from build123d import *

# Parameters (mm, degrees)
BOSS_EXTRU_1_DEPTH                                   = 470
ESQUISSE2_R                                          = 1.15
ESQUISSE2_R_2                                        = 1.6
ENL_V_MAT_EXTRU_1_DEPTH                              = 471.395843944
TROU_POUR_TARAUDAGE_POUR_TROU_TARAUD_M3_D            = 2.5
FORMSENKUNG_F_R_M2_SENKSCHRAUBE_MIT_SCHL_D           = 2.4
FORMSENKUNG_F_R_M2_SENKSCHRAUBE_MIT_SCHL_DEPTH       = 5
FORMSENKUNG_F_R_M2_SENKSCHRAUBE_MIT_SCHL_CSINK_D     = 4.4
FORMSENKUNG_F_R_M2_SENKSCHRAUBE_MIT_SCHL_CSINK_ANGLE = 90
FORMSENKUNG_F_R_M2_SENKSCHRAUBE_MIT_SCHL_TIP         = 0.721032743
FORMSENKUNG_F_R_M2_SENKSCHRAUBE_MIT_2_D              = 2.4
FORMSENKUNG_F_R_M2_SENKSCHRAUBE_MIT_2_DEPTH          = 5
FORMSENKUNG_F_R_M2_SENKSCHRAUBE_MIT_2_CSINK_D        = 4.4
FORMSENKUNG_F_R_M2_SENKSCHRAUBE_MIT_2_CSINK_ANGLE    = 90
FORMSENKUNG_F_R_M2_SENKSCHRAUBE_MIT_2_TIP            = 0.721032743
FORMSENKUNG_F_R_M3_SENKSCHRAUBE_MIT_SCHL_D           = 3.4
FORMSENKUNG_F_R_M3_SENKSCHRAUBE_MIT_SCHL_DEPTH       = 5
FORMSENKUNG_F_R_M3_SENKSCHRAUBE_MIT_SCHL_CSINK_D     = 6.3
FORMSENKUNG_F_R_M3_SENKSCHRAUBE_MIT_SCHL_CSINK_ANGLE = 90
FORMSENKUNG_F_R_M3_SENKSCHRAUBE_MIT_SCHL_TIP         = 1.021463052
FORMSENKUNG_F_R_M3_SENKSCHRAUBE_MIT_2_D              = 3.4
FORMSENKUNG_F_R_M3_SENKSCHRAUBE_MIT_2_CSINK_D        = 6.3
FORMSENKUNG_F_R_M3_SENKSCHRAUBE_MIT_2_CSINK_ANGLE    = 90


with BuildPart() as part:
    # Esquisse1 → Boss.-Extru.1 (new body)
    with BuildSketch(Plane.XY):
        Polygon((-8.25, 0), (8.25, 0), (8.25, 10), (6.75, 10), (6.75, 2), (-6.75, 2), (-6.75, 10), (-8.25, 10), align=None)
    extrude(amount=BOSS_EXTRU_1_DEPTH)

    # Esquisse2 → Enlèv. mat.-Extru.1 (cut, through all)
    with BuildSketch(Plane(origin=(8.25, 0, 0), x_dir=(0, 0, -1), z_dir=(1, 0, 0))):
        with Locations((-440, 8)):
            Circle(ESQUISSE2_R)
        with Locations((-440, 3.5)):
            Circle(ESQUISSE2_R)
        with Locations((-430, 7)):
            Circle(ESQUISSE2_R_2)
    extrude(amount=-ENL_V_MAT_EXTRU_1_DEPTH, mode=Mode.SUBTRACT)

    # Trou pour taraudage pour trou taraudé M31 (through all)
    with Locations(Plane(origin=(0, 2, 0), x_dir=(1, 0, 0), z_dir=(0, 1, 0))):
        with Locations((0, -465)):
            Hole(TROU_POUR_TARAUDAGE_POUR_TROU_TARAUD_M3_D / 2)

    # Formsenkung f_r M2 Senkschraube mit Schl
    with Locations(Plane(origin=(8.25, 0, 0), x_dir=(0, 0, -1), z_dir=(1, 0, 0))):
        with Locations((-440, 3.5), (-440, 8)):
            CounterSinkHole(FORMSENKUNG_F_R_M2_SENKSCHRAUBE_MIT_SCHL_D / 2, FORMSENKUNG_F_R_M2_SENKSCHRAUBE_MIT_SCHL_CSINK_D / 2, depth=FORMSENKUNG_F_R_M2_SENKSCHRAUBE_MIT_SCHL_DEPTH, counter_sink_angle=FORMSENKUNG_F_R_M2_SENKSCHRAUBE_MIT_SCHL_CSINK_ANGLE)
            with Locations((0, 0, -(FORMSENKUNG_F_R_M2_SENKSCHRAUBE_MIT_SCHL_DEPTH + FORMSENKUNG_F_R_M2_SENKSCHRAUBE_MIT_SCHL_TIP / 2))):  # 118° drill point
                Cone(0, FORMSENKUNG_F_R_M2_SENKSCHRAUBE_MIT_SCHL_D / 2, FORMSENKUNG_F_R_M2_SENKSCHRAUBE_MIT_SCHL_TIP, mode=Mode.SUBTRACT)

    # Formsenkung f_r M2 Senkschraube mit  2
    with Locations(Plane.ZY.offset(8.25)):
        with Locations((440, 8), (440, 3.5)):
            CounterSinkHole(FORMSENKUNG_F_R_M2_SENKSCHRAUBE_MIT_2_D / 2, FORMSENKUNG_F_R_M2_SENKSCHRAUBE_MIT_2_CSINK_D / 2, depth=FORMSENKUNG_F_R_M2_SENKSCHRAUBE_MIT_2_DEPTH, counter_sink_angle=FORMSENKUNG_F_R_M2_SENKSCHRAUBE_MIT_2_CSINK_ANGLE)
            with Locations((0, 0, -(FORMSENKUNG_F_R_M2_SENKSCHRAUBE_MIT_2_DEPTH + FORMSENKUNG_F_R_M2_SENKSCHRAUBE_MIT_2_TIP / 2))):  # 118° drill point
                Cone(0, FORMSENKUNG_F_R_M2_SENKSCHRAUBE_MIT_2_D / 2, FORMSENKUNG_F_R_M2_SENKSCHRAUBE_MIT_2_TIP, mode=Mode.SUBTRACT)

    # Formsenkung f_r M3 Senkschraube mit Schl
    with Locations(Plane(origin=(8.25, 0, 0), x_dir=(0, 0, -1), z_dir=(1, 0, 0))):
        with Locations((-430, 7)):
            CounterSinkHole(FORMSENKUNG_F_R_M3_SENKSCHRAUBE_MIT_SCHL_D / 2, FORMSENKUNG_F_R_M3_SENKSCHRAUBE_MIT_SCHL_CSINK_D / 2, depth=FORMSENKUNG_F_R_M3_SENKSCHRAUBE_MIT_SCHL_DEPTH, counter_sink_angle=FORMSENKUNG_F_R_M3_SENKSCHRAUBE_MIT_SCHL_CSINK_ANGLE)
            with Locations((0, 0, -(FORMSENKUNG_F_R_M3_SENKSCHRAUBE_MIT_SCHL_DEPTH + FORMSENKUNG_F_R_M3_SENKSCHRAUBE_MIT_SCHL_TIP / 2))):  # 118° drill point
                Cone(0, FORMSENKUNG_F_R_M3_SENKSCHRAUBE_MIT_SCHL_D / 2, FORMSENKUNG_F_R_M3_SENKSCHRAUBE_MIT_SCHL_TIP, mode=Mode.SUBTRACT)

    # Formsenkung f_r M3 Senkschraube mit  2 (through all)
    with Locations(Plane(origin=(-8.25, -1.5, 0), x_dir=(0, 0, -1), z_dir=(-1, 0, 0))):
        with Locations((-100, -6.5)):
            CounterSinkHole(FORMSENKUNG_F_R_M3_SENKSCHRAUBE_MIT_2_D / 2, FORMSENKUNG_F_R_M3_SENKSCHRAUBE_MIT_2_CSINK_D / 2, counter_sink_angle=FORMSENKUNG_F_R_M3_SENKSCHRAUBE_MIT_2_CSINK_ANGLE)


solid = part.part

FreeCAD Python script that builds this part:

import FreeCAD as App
import Part
import Sketcher
from FreeCAD import Vector
Q = App.Units.Quantity


def add_polygon(sketch, points):
    """Adds a closed chain of lines whose ends are joined by coincident constraints."""
    first, n = sketch.GeometryCount, len(points)
    for a, b in zip(points, points[1:] + points[:1]):
        sketch.addGeometry(Part.LineSegment(App.Vector(*a, 0), App.Vector(*b, 0)), False)
    for i in range(n):
        sketch.addConstraint(Sketcher.Constraint("Coincident", first + i, 2, first + (i + 1) % n, 1))

doc = App.newDocument("Part")
body = doc.addObject("PartDesign::Body", "Body")

# Sketch on XY plane
sketch1 = doc.addObject("Sketcher::SketchObject", "Sketch")
body.addObject(sketch1)
sketch1.AttachmentSupport = (doc.XY_Plane, [""])
sketch1.MapMode = "FlatFace"
add_polygon(sketch1, [(-8.2, 0), (8.2, 0), (8.2, 10), (6.8, 10), (6.8, 2), (-6.8, 2), (-6.8, 10), (-8.2, 10)])  # lines 0-7
sketch1.addConstraint(Sketcher.Constraint("Horizontal", 0))
sketch1.addConstraint(Sketcher.Constraint("Vertical", 1))
sketch1.addConstraint(Sketcher.Constraint("Horizontal", 2))
sketch1.addConstraint(Sketcher.Constraint("Vertical", 3))
sketch1.addConstraint(Sketcher.Constraint("Horizontal", 4))
sketch1.addConstraint(Sketcher.Constraint("Vertical", 5))
sketch1.addConstraint(Sketcher.Constraint("Horizontal", 6))
sketch1.addConstraint(Sketcher.Constraint("Vertical", 7))
sketch1.addConstraint(Sketcher.Constraint("Symmetric", 0, 2, 7, 2, -1, 1))
sketch1.addConstraint(Sketcher.Constraint("Symmetric", 2, 2, 5, 2, -2))
sketch1.addConstraint(Sketcher.Constraint("DistanceY", 1, 1, 1, 2, Q("10 mm")))
sketch1.addConstraint(Sketcher.Constraint("DistanceY", 3, 2, 3, 1, Q("8 mm")))
sketch1.addConstraint(Sketcher.Constraint("DistanceX", 0, 1, 0, 2, Q("16.5 mm")))
sketch1.addConstraint(Sketcher.Constraint("DistanceX", 2, 2, 2, 1, Q("1.5 mm")))
pad1 = doc.addObject("PartDesign::Pad", "Pad")
body.addObject(pad1)
pad1.Profile = sketch1
pad1.Length = 470

# Sketch on YZ plane
sketch2 = doc.addObject("Sketcher::SketchObject", "Sketch001")
body.addObject(sketch2)
sketch2.AttachmentSupport = (doc.YZ_Plane, [""])
sketch2.MapMode = "FlatFace"
sketch2.AttachmentOffset = App.Placement(Vector(0, 0, 8.25), App.Rotation())
sketch2.addGeometry(Part.Circle(Vector(8, 440, 0), Vector(0, 0, 1), 1.1), False)
sketch2.addGeometry(Part.Circle(Vector(3.5, 440, 0), Vector(0, 0, 1), 1.1), False)
sketch2.addGeometry(Part.Circle(Vector(7, 430, 0), Vector(0, 0, 1), 1.6), False)
sketch2.addConstraint(Sketcher.Constraint("Equal", 0, 1))
sketch2.addConstraint(Sketcher.Constraint("Horizontal", 0, 3, 1, 3))
sketch2.addConstraint(Sketcher.Constraint("Diameter", 0, Q("2.3 mm")))
sketch2.addConstraint(Sketcher.Constraint("Diameter", 2, Q("3.2 mm")))
sketch2.addConstraint(Sketcher.Constraint("DistanceX", -1, 1, 0, 3, Q("8 mm")))
sketch2.addConstraint(Sketcher.Constraint("DistanceY", -1, 1, 0, 3, Q("440 mm")))
sketch2.addConstraint(Sketcher.Constraint("DistanceX", -1, 1, 2, 3, Q("7 mm")))
sketch2.addConstraint(Sketcher.Constraint("DistanceY", -1, 1, 2, 3, Q("430 mm")))
sketch2.addConstraint(Sketcher.Constraint("DistanceX", -1, 1, 1, 3, Q("3.5 mm")))
pocket1 = doc.addObject("PartDesign::Pocket", "Pocket")
body.addObject(pocket1)
pocket1.Profile = sketch2
pocket1.Type = "ThroughAll"

# Sketch on XZ plane
sketch3 = doc.addObject("Sketcher::SketchObject", "Sketch002")
body.addObject(sketch3)
sketch3.AttachmentSupport = (doc.XZ_Plane, [""])
sketch3.MapMode = "FlatFace"
sketch3.AttachmentOffset = App.Placement(Vector(0, 0, -2), App.Rotation())
sketch3.addGeometry(Part.Circle(Vector(0, 465, 0), Vector(0, 0, 1), 1.2), False)
sketch3.addConstraint(Sketcher.Constraint("PointOnObject", 0, 3, -2))
sketch3.addConstraint(Sketcher.Constraint("Diameter", 0, Q("2.5 mm")))
sketch3.addConstraint(Sketcher.Constraint("DistanceY", -1, 1, 0, 3, Q("465 mm")))
doc.recompute()
hole = doc.addObject("PartDesign::Hole", "Hole")
body.addObject(hole)
hole.Profile = sketch3
hole.ThreadType = "None"
hole.Diameter = 2.5
hole.DepthType = "ThroughAll"
hole.Reversed = True

# Sketch on YZ plane
sketch4 = doc.addObject("Sketcher::SketchObject", "Sketch003")
body.addObject(sketch4)
sketch4.AttachmentSupport = (doc.YZ_Plane, [""])
sketch4.MapMode = "FlatFace"
sketch4.AttachmentOffset = App.Placement(Vector(0, 0, 8.25), App.Rotation())
sketch4.addGeometry(Part.Circle(Vector(3.5, 440, 0), Vector(0, 0, 1), 1.2), False)
sketch4.addGeometry(Part.Circle(Vector(8, 440, 0), Vector(0, 0, 1), 1.2), False)
sketch4.addConstraint(Sketcher.Constraint("Equal", 0, 1))
sketch4.addConstraint(Sketcher.Constraint("Horizontal", 0, 3, 1, 3))
sketch4.addConstraint(Sketcher.Constraint("Diameter", 0, Q("2.4 mm")))
sketch4.addConstraint(Sketcher.Constraint("DistanceY", -1, 1, 0, 3, Q("440 mm")))
sketch4.addConstraint(Sketcher.Constraint("DistanceX", -1, 1, 1, 3, Q("8 mm")))
sketch4.addConstraint(Sketcher.Constraint("DistanceX", -1, 1, 0, 3, Q("3.5 mm")))
doc.recompute()
hole2 = doc.addObject("PartDesign::Hole", "Hole001")
body.addObject(hole2)
hole2.Profile = sketch4
hole2.ThreadType = "None"
hole2.Diameter = 2.4
hole2.DepthType = "Dimension"
hole2.Depth = 5
hole2.DrillPoint = "Angled"
hole2.DrillPointAngle = 118
hole2.HoleCutType = "Countersink"
hole2.HoleCutDiameter = 4.4
hole2.HoleCutCountersinkAngle = 90

# Sketch on YZ plane
sketch5 = doc.addObject("Sketcher::SketchObject", "Sketch004")
body.addObject(sketch5)
sketch5.AttachmentSupport = (doc.YZ_Plane, [""])
sketch5.MapMode = "FlatFace"
sketch5.AttachmentOffset = App.Placement(Vector(0, 0, -8.25), App.Rotation())
sketch5.addGeometry(Part.Circle(Vector(8, 440, 0), Vector(0, 0, 1), 1.2), False)
sketch5.addGeometry(Part.Circle(Vector(3.5, 440, 0), Vector(0, 0, 1), 1.2), False)
sketch5.addConstraint(Sketcher.Constraint("Equal", 0, 1))
sketch5.addConstraint(Sketcher.Constraint("Horizontal", 0, 3, 1, 3))
sketch5.addConstraint(Sketcher.Constraint("Diameter", 0, Q("2.4 mm")))
sketch5.addConstraint(Sketcher.Constraint("DistanceX", -1, 1, 0, 3, Q("8 mm")))
sketch5.addConstraint(Sketcher.Constraint("DistanceY", -1, 1, 0, 3, Q("440 mm")))
sketch5.addConstraint(Sketcher.Constraint("DistanceX", -1, 1, 1, 3, Q("3.5 mm")))
doc.recompute()
hole3 = doc.addObject("PartDesign::Hole", "Hole002")
body.addObject(hole3)
hole3.Profile = sketch5
hole3.ThreadType = "None"
hole3.Diameter = 2.4
hole3.DepthType = "Dimension"
hole3.Depth = 5
hole3.DrillPoint = "Angled"
hole3.DrillPointAngle = 118
hole3.HoleCutType = "Countersink"
hole3.HoleCutDiameter = 4.4
hole3.HoleCutCountersinkAngle = 90
hole3.Reversed = True

# Sketch on YZ plane
sketch6 = doc.addObject("Sketcher::SketchObject", "Sketch005")
body.addObject(sketch6)
sketch6.AttachmentSupport = (doc.YZ_Plane, [""])
sketch6.MapMode = "FlatFace"
sketch6.AttachmentOffset = App.Placement(Vector(0, 0, 8.25), App.Rotation())
sketch6.addGeometry(Part.Circle(Vector(7, 430, 0), Vector(0, 0, 1), 1.7), False)
sketch6.addConstraint(Sketcher.Constraint("Diameter", 0, Q("3.4 mm")))
sketch6.addConstraint(Sketcher.Constraint("DistanceX", -1, 1, 0, 3, Q("7 mm")))
sketch6.addConstraint(Sketcher.Constraint("DistanceY", -1, 1, 0, 3, Q("430 mm")))
doc.recompute()
hole4 = doc.addObject("PartDesign::Hole", "Hole003")
body.addObject(hole4)
hole4.Profile = sketch6
hole4.ThreadType = "None"
hole4.Diameter = 3.4
hole4.DepthType = "Dimension"
hole4.Depth = 5
hole4.DrillPoint = "Angled"
hole4.DrillPointAngle = 118
hole4.HoleCutType = "Countersink"
hole4.HoleCutDiameter = 6.3
hole4.HoleCutCountersinkAngle = 90

# Sketch on YZ plane
sketch7 = doc.addObject("Sketcher::SketchObject", "Sketch006")
body.addObject(sketch7)
sketch7.AttachmentSupport = (doc.YZ_Plane, [""])
sketch7.MapMode = "FlatFace"
sketch7.AttachmentOffset = App.Placement(Vector(0, 0, -8.25), App.Rotation())
sketch7.addGeometry(Part.Circle(Vector(5, 100, 0), Vector(0, 0, 1), 1.7), False)
sketch7.addConstraint(Sketcher.Constraint("Diameter", 0, Q("3.4 mm")))
sketch7.addConstraint(Sketcher.Constraint("DistanceX", -1, 1, 0, 3, Q("5 mm")))
sketch7.addConstraint(Sketcher.Constraint("DistanceY", -1, 1, 0, 3, Q("100 mm")))
doc.recompute()
hole5 = doc.addObject("PartDesign::Hole", "Hole004")
body.addObject(hole5)
hole5.Profile = sketch7
hole5.ThreadType = "None"
hole5.Diameter = 3.4
hole5.DepthType = "ThroughAll"
hole5.HoleCutType = "Countersink"
hole5.HoleCutDiameter = 6.3
hole5.HoleCutCountersinkAngle = 90
hole5.Reversed = True

doc.recompute()
